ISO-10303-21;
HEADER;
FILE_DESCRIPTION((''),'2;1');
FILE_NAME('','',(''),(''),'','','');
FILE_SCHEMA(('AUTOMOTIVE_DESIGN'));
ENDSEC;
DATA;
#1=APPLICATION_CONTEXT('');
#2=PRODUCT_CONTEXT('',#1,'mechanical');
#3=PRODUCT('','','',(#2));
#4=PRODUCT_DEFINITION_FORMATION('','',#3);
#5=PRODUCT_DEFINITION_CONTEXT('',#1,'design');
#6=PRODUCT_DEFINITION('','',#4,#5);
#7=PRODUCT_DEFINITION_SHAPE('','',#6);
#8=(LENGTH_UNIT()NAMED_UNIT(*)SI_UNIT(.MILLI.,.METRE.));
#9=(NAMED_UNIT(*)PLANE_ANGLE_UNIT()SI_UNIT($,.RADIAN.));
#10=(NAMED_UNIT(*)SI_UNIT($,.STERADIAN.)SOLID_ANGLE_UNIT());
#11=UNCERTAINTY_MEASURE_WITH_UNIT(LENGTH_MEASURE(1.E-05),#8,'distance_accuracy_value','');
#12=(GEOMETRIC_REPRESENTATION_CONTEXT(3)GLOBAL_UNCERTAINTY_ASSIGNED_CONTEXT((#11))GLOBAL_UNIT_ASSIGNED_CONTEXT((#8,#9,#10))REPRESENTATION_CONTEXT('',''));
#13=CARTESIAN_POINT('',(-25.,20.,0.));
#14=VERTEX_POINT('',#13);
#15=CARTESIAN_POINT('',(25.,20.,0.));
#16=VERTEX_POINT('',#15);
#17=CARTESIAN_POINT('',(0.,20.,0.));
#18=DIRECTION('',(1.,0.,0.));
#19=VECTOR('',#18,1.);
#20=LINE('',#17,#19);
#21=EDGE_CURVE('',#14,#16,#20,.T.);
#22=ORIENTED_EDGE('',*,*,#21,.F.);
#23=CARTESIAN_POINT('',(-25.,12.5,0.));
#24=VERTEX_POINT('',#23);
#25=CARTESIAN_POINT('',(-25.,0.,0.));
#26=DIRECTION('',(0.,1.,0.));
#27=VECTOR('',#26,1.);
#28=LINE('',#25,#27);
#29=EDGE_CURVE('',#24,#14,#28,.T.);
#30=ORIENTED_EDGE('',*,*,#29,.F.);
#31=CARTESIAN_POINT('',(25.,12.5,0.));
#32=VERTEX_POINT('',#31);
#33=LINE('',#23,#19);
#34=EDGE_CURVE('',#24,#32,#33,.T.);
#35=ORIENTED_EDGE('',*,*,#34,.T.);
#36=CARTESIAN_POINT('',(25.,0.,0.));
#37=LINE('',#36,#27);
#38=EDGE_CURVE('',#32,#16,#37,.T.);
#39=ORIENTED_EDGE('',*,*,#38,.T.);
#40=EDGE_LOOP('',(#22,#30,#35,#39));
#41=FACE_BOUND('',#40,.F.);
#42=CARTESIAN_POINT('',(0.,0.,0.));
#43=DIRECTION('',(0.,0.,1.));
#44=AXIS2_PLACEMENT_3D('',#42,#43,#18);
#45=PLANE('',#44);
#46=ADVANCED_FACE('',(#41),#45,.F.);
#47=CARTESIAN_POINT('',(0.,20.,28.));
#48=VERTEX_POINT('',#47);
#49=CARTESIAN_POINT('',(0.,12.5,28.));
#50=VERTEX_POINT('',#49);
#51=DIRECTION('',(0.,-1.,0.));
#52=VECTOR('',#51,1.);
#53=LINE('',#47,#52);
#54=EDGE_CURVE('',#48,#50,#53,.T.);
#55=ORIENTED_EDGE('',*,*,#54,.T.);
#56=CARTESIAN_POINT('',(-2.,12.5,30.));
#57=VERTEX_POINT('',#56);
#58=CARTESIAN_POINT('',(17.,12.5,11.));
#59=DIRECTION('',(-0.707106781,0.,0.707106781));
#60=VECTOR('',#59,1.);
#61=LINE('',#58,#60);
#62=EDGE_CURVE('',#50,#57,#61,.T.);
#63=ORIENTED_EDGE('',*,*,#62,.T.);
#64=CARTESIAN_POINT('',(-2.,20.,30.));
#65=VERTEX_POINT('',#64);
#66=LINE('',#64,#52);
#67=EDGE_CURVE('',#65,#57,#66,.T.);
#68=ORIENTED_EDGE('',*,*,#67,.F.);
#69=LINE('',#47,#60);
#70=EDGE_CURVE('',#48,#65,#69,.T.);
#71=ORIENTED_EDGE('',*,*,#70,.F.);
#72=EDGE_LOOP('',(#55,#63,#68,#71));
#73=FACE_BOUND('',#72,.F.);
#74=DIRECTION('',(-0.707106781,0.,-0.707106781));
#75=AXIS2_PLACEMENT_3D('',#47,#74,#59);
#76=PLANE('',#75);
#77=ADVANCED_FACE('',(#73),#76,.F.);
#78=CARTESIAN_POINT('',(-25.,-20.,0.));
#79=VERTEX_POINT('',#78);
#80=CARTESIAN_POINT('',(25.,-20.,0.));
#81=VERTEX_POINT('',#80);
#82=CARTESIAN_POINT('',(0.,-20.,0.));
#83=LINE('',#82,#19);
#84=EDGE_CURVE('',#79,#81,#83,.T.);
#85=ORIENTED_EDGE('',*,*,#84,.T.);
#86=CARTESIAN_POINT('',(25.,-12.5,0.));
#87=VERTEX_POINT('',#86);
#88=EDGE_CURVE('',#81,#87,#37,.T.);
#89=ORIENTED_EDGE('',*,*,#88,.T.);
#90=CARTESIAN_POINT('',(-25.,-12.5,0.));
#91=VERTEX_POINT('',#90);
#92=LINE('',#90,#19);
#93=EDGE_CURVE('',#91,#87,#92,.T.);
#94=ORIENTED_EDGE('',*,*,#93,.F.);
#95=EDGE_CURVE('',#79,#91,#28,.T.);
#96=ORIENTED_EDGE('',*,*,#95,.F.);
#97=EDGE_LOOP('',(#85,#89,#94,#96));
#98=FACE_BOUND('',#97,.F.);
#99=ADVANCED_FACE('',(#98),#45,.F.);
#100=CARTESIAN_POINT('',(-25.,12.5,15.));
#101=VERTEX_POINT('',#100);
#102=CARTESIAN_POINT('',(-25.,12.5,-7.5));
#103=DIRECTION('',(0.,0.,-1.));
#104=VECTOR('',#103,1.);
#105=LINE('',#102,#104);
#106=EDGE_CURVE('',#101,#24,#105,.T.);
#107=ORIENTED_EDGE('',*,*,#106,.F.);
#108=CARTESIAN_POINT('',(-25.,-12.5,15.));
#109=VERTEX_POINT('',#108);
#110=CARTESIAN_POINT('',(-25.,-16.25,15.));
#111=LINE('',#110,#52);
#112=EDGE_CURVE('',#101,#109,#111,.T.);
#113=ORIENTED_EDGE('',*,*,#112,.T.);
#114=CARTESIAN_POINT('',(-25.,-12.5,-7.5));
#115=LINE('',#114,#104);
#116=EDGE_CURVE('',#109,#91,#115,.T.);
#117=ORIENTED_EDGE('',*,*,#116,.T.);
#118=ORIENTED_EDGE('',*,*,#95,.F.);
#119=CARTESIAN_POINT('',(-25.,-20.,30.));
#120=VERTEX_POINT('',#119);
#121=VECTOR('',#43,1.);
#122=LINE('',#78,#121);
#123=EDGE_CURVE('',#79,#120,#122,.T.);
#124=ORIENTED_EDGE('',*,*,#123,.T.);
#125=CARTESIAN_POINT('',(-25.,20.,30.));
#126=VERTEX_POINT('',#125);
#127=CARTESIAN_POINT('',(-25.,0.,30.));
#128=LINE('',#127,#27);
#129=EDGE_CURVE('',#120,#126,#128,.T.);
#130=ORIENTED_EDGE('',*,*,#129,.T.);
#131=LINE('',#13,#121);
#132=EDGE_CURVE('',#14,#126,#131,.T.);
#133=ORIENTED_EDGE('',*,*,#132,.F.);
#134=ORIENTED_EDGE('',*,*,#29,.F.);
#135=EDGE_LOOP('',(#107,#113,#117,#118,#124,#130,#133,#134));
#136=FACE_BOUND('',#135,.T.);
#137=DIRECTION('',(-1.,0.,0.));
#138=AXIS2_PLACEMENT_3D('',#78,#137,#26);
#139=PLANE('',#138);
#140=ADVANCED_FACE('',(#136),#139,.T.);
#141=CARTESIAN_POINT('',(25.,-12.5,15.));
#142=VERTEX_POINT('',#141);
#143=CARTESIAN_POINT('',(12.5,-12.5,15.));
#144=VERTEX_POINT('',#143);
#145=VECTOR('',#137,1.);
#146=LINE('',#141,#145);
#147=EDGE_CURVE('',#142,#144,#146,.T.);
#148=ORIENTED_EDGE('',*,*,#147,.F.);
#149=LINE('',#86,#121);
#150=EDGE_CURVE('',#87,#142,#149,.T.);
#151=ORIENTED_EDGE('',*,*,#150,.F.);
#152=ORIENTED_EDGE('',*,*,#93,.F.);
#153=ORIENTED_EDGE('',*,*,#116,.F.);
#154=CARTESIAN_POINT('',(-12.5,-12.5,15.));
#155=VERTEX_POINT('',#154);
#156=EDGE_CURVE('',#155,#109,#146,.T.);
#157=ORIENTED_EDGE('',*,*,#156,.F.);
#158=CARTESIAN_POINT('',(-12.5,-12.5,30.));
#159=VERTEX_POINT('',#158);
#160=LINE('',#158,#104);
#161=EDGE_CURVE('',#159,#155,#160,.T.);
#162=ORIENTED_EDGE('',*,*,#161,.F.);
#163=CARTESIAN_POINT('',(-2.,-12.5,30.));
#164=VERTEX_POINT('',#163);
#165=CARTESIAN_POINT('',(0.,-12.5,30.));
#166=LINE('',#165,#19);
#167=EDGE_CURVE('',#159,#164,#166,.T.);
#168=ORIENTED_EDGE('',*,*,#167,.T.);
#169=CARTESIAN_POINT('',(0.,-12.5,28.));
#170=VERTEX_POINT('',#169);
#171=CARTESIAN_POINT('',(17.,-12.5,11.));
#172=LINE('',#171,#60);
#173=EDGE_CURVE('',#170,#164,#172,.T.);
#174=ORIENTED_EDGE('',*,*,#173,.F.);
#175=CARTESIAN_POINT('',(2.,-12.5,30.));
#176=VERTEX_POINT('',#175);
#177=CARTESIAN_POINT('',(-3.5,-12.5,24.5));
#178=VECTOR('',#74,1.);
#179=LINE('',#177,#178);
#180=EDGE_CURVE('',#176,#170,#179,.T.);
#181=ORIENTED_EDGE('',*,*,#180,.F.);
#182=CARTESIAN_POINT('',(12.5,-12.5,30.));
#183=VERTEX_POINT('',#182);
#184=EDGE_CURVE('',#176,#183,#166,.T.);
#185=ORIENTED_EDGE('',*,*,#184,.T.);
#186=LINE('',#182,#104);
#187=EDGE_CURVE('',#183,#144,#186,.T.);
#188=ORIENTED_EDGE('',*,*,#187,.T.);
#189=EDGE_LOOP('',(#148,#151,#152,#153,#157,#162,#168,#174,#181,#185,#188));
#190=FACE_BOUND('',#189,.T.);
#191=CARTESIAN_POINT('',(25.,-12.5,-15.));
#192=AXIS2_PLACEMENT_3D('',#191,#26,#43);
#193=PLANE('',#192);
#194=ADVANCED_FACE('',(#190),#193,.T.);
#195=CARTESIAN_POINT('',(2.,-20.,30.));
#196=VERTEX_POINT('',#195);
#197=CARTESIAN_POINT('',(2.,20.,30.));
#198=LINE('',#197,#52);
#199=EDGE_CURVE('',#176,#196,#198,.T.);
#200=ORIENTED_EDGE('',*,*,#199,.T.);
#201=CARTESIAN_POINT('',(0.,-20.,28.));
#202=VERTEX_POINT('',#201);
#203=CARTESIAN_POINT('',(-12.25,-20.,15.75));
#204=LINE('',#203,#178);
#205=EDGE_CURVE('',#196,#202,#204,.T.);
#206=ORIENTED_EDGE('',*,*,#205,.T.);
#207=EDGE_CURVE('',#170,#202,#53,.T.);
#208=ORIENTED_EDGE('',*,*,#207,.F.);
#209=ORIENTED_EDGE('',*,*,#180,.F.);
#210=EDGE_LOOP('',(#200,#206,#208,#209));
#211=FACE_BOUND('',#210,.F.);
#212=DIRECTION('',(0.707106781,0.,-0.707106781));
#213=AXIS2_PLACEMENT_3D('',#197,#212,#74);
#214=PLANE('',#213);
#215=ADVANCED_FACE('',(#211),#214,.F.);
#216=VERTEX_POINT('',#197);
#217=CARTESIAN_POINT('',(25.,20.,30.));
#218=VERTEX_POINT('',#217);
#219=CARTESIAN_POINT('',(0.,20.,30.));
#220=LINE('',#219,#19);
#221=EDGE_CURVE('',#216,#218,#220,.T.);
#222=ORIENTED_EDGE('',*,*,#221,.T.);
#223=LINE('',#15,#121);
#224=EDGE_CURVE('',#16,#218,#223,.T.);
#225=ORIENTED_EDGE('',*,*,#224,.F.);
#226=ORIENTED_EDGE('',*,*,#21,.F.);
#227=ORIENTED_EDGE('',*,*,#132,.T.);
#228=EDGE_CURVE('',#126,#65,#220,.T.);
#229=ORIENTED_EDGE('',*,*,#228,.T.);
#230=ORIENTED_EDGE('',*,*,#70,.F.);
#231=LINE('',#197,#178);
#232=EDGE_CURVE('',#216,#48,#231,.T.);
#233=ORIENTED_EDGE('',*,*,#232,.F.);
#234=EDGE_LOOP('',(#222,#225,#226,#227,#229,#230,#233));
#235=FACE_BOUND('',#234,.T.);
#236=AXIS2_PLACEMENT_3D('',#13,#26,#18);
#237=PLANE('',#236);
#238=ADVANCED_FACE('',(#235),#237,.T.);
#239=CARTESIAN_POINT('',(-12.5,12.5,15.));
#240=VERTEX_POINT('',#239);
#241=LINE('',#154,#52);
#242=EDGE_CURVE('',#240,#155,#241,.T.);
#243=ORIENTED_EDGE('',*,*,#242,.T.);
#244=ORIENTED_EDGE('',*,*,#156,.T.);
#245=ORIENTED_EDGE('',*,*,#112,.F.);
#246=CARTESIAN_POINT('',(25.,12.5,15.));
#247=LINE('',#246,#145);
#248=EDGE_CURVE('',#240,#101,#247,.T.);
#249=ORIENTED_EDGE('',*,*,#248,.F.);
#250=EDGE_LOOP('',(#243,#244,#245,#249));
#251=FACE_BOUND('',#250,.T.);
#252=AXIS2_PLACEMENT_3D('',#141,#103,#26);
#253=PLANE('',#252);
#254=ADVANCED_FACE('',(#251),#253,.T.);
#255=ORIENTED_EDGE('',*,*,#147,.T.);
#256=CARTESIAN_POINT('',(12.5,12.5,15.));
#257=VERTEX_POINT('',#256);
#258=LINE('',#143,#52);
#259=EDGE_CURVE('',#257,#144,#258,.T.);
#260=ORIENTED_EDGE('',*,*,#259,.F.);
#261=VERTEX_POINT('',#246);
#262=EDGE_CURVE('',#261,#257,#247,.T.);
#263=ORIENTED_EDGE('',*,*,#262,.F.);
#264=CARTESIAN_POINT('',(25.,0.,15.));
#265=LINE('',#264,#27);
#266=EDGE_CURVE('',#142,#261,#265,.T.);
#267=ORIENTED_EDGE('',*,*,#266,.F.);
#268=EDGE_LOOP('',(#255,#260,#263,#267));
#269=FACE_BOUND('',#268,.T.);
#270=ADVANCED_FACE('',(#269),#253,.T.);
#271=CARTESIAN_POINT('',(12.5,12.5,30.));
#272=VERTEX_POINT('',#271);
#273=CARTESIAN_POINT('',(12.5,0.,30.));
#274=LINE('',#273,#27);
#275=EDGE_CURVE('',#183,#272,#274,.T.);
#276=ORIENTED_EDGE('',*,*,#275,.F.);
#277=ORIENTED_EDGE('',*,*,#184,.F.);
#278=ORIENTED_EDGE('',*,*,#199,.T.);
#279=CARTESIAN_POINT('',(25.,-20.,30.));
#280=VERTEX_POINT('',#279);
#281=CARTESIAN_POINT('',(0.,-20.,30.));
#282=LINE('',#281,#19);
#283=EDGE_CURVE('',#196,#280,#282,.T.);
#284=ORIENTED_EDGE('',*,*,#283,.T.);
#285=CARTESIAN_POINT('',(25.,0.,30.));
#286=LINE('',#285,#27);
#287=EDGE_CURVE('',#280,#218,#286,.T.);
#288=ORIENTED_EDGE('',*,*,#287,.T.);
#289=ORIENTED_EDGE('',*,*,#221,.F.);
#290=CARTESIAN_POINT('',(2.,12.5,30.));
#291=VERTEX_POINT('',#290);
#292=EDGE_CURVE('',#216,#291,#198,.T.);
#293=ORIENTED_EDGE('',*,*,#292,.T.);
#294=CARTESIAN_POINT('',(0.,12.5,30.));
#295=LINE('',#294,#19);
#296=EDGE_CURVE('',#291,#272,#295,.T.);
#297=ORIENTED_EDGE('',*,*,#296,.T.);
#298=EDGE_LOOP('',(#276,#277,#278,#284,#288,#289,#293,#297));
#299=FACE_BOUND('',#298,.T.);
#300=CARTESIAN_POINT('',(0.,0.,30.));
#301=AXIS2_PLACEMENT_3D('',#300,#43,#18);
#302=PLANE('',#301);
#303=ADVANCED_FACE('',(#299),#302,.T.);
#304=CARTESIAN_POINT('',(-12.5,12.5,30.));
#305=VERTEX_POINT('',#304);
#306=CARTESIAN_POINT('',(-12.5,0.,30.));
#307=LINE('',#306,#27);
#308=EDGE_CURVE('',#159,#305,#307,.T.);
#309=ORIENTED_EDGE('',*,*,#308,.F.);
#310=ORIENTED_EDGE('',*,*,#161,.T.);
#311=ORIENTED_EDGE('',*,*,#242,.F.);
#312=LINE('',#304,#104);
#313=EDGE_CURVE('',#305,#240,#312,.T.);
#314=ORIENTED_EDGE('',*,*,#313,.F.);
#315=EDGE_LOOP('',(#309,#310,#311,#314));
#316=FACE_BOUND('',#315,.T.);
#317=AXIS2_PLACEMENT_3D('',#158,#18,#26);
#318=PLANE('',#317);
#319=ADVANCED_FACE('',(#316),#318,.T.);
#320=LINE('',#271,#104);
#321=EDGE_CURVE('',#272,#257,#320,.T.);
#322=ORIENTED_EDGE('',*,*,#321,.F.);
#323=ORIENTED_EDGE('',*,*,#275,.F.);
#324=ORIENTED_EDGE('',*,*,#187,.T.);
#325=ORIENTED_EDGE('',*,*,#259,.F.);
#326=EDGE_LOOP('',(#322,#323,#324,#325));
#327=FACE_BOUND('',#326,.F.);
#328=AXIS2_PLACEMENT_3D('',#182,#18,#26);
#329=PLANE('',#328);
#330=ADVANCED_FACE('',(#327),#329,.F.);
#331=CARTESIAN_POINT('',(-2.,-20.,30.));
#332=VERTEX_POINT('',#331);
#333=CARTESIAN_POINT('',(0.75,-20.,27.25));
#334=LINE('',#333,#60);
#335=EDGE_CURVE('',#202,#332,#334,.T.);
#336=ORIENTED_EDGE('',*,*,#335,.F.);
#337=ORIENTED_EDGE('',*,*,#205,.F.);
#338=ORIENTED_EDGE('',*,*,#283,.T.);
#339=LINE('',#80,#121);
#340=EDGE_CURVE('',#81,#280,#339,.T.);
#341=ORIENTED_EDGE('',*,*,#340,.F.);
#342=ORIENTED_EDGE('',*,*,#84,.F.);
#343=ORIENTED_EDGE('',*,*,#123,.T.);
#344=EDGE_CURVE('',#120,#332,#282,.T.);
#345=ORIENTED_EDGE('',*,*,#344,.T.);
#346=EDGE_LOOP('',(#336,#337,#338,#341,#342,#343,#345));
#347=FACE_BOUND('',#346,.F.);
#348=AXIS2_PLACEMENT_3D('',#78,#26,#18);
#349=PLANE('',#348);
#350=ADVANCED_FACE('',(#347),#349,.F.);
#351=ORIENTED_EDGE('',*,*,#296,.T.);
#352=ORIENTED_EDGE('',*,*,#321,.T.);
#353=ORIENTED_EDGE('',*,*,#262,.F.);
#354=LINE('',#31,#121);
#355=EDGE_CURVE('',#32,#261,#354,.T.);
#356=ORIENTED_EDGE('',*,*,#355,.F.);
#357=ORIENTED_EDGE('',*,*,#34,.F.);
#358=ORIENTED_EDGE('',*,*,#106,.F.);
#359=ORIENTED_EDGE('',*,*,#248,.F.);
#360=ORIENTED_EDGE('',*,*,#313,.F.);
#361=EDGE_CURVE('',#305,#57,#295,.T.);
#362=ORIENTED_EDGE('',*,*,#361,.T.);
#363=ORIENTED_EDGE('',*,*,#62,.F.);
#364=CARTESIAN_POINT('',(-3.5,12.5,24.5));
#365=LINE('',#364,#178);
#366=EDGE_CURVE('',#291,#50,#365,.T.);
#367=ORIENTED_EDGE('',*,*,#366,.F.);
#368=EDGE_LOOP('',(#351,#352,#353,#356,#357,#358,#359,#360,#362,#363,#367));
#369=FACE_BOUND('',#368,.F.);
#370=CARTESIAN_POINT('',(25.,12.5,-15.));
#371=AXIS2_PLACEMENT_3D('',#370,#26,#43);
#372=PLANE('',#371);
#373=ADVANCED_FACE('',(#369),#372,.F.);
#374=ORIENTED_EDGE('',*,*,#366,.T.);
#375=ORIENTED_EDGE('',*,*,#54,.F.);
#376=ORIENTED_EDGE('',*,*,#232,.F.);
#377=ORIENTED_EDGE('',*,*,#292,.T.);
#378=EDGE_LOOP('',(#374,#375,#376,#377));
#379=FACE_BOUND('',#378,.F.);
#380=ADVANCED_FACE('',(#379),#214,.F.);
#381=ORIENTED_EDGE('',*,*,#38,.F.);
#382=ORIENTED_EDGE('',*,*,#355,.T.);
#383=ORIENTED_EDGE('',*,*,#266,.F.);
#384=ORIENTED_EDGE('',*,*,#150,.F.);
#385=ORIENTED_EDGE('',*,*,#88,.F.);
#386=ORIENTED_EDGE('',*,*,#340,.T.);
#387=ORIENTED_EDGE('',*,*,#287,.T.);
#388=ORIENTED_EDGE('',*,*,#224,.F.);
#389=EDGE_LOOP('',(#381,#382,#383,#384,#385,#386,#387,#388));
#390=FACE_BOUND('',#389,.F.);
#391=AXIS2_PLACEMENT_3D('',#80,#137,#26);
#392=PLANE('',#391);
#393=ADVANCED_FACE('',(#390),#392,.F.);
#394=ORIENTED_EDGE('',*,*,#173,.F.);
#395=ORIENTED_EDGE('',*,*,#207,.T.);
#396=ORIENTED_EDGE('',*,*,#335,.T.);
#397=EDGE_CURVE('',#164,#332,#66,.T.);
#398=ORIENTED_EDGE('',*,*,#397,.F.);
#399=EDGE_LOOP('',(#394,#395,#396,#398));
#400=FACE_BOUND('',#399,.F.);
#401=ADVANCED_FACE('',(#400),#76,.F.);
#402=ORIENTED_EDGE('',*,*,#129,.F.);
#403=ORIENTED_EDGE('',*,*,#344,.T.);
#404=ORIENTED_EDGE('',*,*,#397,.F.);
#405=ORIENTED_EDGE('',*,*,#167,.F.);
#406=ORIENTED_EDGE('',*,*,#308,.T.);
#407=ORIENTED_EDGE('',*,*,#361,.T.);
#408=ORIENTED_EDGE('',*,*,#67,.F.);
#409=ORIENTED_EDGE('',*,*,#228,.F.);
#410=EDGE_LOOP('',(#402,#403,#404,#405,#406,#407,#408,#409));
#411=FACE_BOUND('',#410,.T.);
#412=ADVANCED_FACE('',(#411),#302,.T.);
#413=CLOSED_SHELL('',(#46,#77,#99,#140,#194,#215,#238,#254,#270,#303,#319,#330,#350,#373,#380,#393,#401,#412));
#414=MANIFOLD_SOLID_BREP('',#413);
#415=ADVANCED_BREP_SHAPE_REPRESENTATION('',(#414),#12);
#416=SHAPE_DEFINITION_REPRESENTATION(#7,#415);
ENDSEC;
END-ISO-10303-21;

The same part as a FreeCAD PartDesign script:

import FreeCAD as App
import Part
import Sketcher
from FreeCAD import Vector
Q = App.Units.Quantity


def add_polygon(sketch, points):
    """Adds a closed chain of lines whose ends are joined by coincident constraints."""
    first, n = sketch.GeometryCount, len(points)
    for a, b in zip(points, points[1:] + points[:1]):
        sketch.addGeometry(Part.LineSegment(App.Vector(*a, 0), App.Vector(*b, 0)), False)
    for i in range(n):
        sketch.addConstraint(Sketcher.Constraint("Coincident", first + i, 2, first + (i + 1) % n, 1))

doc = App.newDocument("Part")
body = doc.addObject("PartDesign::Body", "Body")

sketch1 = body.newObject("Sketcher::SketchObject", "Sketch")
sketch1.AttachmentSupport = (doc.getObject("XY_Plane"), [""])
sketch1.MapMode = "FlatFace"
add_polygon(sketch1, [(-25, 20), (-25, -20), (25, -20), (25, 20)])
sketch1.addConstraint([
    Sketcher.Constraint("Vertical", 0),
    Sketcher.Constraint("Horizontal", 1),
    Sketcher.Constraint("Vertical", 2),
    Sketcher.Constraint("Horizontal", 3),
    Sketcher.Constraint("Symmetric", 0, 2, 2, 2, -1, 1),
    Sketcher.Constraint("DistanceX", 1, 1, 1, 2, Q("50 mm")),
    Sketcher.Constraint("DistanceY", 0, 2, 0, 1, Q("40 mm")),
])
pad1 = body.newObject("PartDesign::Pad", "Pad")
pad1.Profile = sketch1
pad1.Length = 30

sketch2 = body.newObject("Sketcher::SketchObject", "Sketch001")
sketch2.AttachmentSupport = (doc.getObject("YZ_Plane"), [""])
sketch2.MapMode = "FlatFace"
sketch2.AttachmentOffset = App.Placement(Vector(0, 0, 25), App.Rotation())
add_polygon(sketch2, [(-12, 15), (-12, -15), (12, -15), (12, 15)])
sketch2.addConstraint([
    Sketcher.Constraint("Vertical", 0),
    Sketcher.Constraint("Horizontal", 1),
    Sketcher.Constraint("Vertical", 2),
    Sketcher.Constraint("Horizontal", 3),
    Sketcher.Constraint("Symmetric", 0, 2, 2, 2, -1, 1),
    Sketcher.Constraint("DistanceX", 1, 1, 1, 2, Q("25 mm")),
    Sketcher.Constraint("DistanceY", 0, 2, 0, 1, Q("30 mm")),
])
pocket1 = body.newObject("PartDesign::Pocket", "Pocket")
pocket1.Profile = sketch2
pocket1.Type = "ThroughAll"

sketch3 = body.newObject("Sketcher::SketchObject", "Sketch002")
sketch3.AttachmentSupport = (doc.getObject("XY_Plane"), [""])
sketch3.MapMode = "FlatFace"
sketch3.AttachmentOffset = App.Placement(Vector(0, 0, 30), App.Rotation())
add_polygon(sketch3, [(-12, 12), (-12, -12), (12, -12), (12, 12)])
sketch3.addConstraint([
    Sketcher.Constraint("Vertical", 0),
    Sketcher.Constraint("Horizontal", 1),
    Sketcher.Constraint("Vertical", 2),
    Sketcher.Constraint("Horizontal", 3),
    Sketcher.Constraint("Symmetric", 0, 2, 2, 2, -1, 1),
    Sketcher.Constraint("Equal", 3, 0),
    Sketcher.Constraint("DistanceX", 1, 1, 1, 2, Q("25 mm")),
])
pocket2 = body.newObject("PartDesign::Pocket", "Pocket001")
pocket2.Profile = sketch3
pocket2.Type = "ThroughAll"

sketch4 = body.newObject("Sketcher::SketchObject", "Sketch003")
sketch4.AttachmentSupport = (doc.getObject("XZ_Plane"), [""])
sketch4.MapMode = "FlatFace"
sketch4.AttachmentOffset = App.Placement(Vector(0, 0, -20), App.Rotation())
add_polygon(sketch4, [(-2, 30), (2, 30), (0, 28)])
sketch4.addConstraint([
    Sketcher.Constraint("Horizontal", 0),
    Sketcher.Constraint("PointOnObject", 1, 2, -2),
    Sketcher.Constraint("Perpendicular", 1, 2),
    Sketcher.Constraint("Equal", 1, 2),
    Sketcher.Constraint("DistanceX", 0, 1, 0, 2, Q("4 mm")),
    Sketcher.Constraint("DistanceY", -1, 1, 0, 2, Q("30 mm")),
])
pocket3 = body.newObject("PartDesign::Pocket", "Pocket002")
pocket3.Profile = sketch4
pocket3.Type = "ThroughAll"
pocket3.Reversed = True

doc.recompute()
